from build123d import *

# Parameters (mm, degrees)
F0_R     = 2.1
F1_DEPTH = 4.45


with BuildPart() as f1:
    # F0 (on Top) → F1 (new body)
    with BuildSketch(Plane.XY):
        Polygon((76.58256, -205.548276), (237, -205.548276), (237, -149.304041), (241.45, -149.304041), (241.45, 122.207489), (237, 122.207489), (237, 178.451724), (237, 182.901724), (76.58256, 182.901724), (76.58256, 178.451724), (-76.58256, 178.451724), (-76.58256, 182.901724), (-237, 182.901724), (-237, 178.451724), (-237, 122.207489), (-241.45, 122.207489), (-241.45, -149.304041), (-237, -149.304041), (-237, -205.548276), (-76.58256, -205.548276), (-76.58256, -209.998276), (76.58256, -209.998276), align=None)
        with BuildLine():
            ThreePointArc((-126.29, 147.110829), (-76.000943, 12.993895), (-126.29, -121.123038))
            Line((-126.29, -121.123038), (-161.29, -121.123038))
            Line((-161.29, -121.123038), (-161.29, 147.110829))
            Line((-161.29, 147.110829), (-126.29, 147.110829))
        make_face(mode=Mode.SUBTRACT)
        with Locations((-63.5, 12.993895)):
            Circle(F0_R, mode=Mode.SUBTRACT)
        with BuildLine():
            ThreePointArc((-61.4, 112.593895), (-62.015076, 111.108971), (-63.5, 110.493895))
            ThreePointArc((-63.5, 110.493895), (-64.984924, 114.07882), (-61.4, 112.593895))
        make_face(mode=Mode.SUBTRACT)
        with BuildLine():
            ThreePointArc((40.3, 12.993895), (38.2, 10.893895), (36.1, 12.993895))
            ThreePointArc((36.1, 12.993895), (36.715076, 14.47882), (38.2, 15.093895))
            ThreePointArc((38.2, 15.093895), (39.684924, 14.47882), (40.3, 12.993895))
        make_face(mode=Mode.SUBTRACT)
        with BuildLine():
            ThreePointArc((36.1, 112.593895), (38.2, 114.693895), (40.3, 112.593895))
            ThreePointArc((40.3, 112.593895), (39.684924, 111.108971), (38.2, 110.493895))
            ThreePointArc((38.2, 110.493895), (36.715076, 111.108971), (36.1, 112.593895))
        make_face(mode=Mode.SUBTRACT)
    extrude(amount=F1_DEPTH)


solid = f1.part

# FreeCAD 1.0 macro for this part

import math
import FreeCAD as App
import Part
import Sketcher
Q = App.Units.Quantity


def add_polygon(sketch, points):
    """Adds a closed chain of lines whose ends are joined by coincident constraints."""
    first, n = sketch.GeometryCount, len(points)
    for a, b in zip(points, points[1:] + points[:1]):
        sketch.addGeometry(Part.LineSegment(App.Vector(*a, 0), App.Vector(*b, 0)), False)
    for i in range(n):
        sketch.addConstraint(Sketcher.Constraint("Coincident", first + i, 2, first + (i + 1) % n, 1))

doc = App.newDocument("Part")
body = doc.addObject("PartDesign::Body", "Body")

# Sketch on XY plane
sketch1 = doc.addObject("Sketcher::SketchObject", "Sketch")
body.addObject(sketch1)
sketch1.AttachmentSupport = (doc.XY_Plane, [""])
sketch1.MapMode = "FlatFace"
add_polygon(sketch1, [(76.6, -205.5), (237, -205.5), (237, -149.3), (241.4, -149.3), (241.4, 122.2), (237, 122.2), (237, 182.9), (76.6, 182.9), (76.6, 178.5), (-76.6, 178.5), (-76.6, 182.9), (-237, 182.9), (-237, 122.2), (-241.4, 122.2), (-241.4, -149.3), (-237, -149.3), (-237, -205.5), (-76.6, -205.5), (-76.6, -210), (76.6, -210)])  # lines 0-19
sketch1.addGeometry(Part.Circle(App.Vector(-63.5, 13, 0), App.Vector(0, 0, 1), 2.1), False)  # 20
sketch1.addGeometry(Part.ArcOfCircle(Part.Circle(App.Vector(38.2, 13, 0), App.Vector(0, 0, 1), 2.1), math.radians(0), math.radians(90)), False)  # 21
sketch1.addGeometry(Part.ArcOfCircle(Part.Circle(App.Vector(38.2, 13, 0), App.Vector(0, 0, 1), 2.1), math.radians(180), math.radians(360)), False)  # 22
sketch1.addGeometry(Part.ArcOfCircle(Part.Circle(App.Vector(38.2, 13, 0), App.Vector(0, 0, 1), 2.1), math.radians(90), math.radians(180)), False)  # 23
sketch1.addGeometry(Part.LineSegment(App.Vector(-161.3, 147.1, 0), App.Vector(-126.3, 147.1, 0)), False)  # 24
sketch1.addGeometry(Part.ArcOfCircle(Part.Circle(App.Vector(-280, 13, 0), App.Vector(0, 0, 1), 204), math.radians(-41), math.radians(41)), False)  # 25
sketch1.addGeometry(Part.LineSegment(App.Vector(-126.3, -121.1, 0), App.Vector(-161.3, -121.1, 0)), False)  # 26
sketch1.addGeometry(Part.LineSegment(App.Vector(-161.3, -121.1, 0), App.Vector(-161.3, 147.1, 0)), False)  # 27
sketch1.addGeometry(Part.ArcOfCircle(Part.Circle(App.Vector(-63.5, 112.6, 0), App.Vector(0, 0, 1), 2.1), math.radians(0), math.radians(270)), False)  # 28
sketch1.addGeometry(Part.ArcOfCircle(Part.Circle(App.Vector(-63.5, 112.6, 0), App.Vector(0, 0, 1), 2.1), math.radians(-90), math.radians(0)), False)  # 29
sketch1.addGeometry(Part.ArcOfCircle(Part.Circle(App.Vector(38.2, 112.6, 0), App.Vector(0, 0, 1), 2.1), math.radians(-180), math.radians(-90)), False)  # 30
sketch1.addGeometry(Part.ArcOfCircle(Part.Circle(App.Vector(38.2, 112.6, 0), App.Vector(0, 0, 1), 2.1), math.radians(0), math.radians(180)), False)  # 31
sketch1.addGeometry(Part.ArcOfCircle(Part.Circle(App.Vector(38.2, 112.6, 0), App.Vector(0, 0, 1), 2.1), math.radians(-90), math.radians(0)), False)  # 32
sketch1.addConstraint([
    Sketcher.Constraint("Tangent", 21, 1, 22, 2),
    Sketcher.Constraint("Tangent", 22, 1, 23, 2),
    Sketcher.Constraint("Tangent", 23, 1, 21, 2),
    Sketcher.Constraint("Coincident", 24, 2, 25, 2),
    Sketcher.Constraint("Coincident", 25, 1, 26, 1),
    Sketcher.Constraint("Coincident", 26, 2, 27, 1),
    Sketcher.Constraint("Coincident", 27, 2, 24, 1),
    Sketcher.Constraint("Tangent", 28, 1, 29, 2),
    Sketcher.Constraint("Coincident", 29, 1, 28, 2),
    Sketcher.Constraint("Tangent", 30, 1, 31, 2),
    Sketcher.Constraint("Tangent", 31, 1, 32, 2),
    Sketcher.Constraint("Tangent", 32, 1, 30, 2),
    Sketcher.Constraint("Horizontal", 0),
    Sketcher.Constraint("Vertical", 1),
    Sketcher.Constraint("Horizontal", 2),
    Sketcher.Constraint("Vertical", 3),
    Sketcher.Constraint("Horizontal", 4),
    Sketcher.Constraint("Vertical", 5),
    Sketcher.Constraint("Horizontal", 6),
    Sketcher.Constraint("Vertical", 7),
    Sketcher.Constraint("Horizontal", 8),
    Sketcher.Constraint("Vertical", 9),
    Sketcher.Constraint("Horizontal", 10),
    Sketcher.Constraint("Vertical", 11),
    Sketcher.Constraint("Horizontal", 12),
    Sketcher.Constraint("Vertical", 13),
    Sketcher.Constraint("Horizontal", 14),
    Sketcher.Constraint("Vertical", 15),
    Sketcher.Constraint("Horizontal", 16),
    Sketcher.Constraint("Vertical", 17),
    Sketcher.Constraint("Horizontal", 18),
    Sketcher.Constraint("Vertical", 19),
    Sketcher.Constraint("Horizontal", 24),
    Sketcher.Constraint("Horizontal", 26),
    Sketcher.Constraint("Vertical", 27),
    Sketcher.Constraint("Equal", 20, 21),
    Sketcher.Constraint("Equal", 23, 28),
    Sketcher.Constraint("Equal", 29, 30),
    Sketcher.Constraint("Symmetric", 6, 2, 9, 2, -2),
    Sketcher.Constraint("Symmetric", 4, 2, 11, 2, -2),
    Sketcher.Constraint("Symmetric", 2, 2, 13, 2, -2),
    Sketcher.Constraint("Symmetric", 0, 2, 15, 2, -2),
    Sketcher.Constraint("Horizontal", 20, 3, 21, 3),
    Sketcher.Constraint("Horizontal", 23, 3, 25, 3),
    Sketcher.Constraint("Horizontal", 29, 3, 30, 3),
    Sketcher.Constraint("Horizontal", 25, 3, 21, 1),
    Sketcher.Constraint("Horizontal", 21, 1, 22, 1),
    Sketcher.Constraint("Horizontal", 32, 3, 28, 1),
    Sketcher.Constraint("Horizontal", 28, 1, 30, 1),
    Sketcher.Constraint("Horizontal", 30, 1, 31, 1),
    Sketcher.Constraint("Vertical", 20, 3, 28, 3),
    Sketcher.Constraint("Vertical", 23, 3, 30, 3),
    Sketcher.Constraint("Vertical", 1, 2, 4, 2),
    Sketcher.Constraint("Vertical", 9, 2, 16, 2),
    Sketcher.Constraint("Vertical", 7, 2, 18, 2),
    Sketcher.Constraint("Vertical", 32, 3, 23, 1),
    Sketcher.Constraint("Vertical", 24, 2, 25, 1),
    Sketcher.Constraint("Vertical", 28, 3, 29, 1),
    Sketcher.Constraint("Vertical", 23, 1, 32, 1),
    Sketcher.Constraint("Equal", 14, 7),
    Sketcher.Constraint("Equal", 9, 17),
    Sketcher.Constraint("Diameter", 20, Q("4.2 mm")),
    Sketcher.Constraint("DistanceX", 24, 1, 24, 2, Q("35 mm")),
    Sketcher.Constraint("DistanceX", -1, 1, 0, 2, Q("237 mm")),
    Sketcher.Constraint("DistanceX", 2, 1, 2, 2, Q("4.45 mm")),
    Sketcher.Constraint("DistanceX", 20, 3, -1, 1, Q("63.5 mm")),
    Sketcher.Constraint("DistanceX", -1, 1, 21, 3, Q("38.200001 mm")),
    Sketcher.Constraint("DistanceY", 20, 3, 28, 3, Q("99.6 mm")),
    Sketcher.Constraint("DistanceX", 24, 2, -1, 1, Q("126.29 mm")),
    Sketcher.Constraint("Radius", 25, Q("203.98415 mm")),
    Sketcher.Constraint("DistanceX", 0, 1, 0, 2, Q("160.41744 mm")),
    Sketcher.Constraint("DistanceY", 3, 1, 3, 2, Q("271.51153 mm")),
    Sketcher.Constraint("DistanceY", 1, 1, 1, 2, Q("56.244235 mm")),
    Sketcher.Constraint("DistanceY", 5, 1, 5, 2, Q("60.694235 mm")),
    Sketcher.Constraint("DistanceY", 27, 1, 27, 2, Q("268.233867 mm")),
    Sketcher.Constraint("DistanceY", 1, 2, -1, 1, Q("149.304041 mm")),
    Sketcher.Constraint("DistanceY", -1, 1, 24, 2, Q("147.110829 mm")),
])
pad1 = doc.addObject("PartDesign::Pad", "Pad")
body.addObject(pad1)
pad1.Profile = sketch1
pad1.Length = 4.45

doc.recompute()
